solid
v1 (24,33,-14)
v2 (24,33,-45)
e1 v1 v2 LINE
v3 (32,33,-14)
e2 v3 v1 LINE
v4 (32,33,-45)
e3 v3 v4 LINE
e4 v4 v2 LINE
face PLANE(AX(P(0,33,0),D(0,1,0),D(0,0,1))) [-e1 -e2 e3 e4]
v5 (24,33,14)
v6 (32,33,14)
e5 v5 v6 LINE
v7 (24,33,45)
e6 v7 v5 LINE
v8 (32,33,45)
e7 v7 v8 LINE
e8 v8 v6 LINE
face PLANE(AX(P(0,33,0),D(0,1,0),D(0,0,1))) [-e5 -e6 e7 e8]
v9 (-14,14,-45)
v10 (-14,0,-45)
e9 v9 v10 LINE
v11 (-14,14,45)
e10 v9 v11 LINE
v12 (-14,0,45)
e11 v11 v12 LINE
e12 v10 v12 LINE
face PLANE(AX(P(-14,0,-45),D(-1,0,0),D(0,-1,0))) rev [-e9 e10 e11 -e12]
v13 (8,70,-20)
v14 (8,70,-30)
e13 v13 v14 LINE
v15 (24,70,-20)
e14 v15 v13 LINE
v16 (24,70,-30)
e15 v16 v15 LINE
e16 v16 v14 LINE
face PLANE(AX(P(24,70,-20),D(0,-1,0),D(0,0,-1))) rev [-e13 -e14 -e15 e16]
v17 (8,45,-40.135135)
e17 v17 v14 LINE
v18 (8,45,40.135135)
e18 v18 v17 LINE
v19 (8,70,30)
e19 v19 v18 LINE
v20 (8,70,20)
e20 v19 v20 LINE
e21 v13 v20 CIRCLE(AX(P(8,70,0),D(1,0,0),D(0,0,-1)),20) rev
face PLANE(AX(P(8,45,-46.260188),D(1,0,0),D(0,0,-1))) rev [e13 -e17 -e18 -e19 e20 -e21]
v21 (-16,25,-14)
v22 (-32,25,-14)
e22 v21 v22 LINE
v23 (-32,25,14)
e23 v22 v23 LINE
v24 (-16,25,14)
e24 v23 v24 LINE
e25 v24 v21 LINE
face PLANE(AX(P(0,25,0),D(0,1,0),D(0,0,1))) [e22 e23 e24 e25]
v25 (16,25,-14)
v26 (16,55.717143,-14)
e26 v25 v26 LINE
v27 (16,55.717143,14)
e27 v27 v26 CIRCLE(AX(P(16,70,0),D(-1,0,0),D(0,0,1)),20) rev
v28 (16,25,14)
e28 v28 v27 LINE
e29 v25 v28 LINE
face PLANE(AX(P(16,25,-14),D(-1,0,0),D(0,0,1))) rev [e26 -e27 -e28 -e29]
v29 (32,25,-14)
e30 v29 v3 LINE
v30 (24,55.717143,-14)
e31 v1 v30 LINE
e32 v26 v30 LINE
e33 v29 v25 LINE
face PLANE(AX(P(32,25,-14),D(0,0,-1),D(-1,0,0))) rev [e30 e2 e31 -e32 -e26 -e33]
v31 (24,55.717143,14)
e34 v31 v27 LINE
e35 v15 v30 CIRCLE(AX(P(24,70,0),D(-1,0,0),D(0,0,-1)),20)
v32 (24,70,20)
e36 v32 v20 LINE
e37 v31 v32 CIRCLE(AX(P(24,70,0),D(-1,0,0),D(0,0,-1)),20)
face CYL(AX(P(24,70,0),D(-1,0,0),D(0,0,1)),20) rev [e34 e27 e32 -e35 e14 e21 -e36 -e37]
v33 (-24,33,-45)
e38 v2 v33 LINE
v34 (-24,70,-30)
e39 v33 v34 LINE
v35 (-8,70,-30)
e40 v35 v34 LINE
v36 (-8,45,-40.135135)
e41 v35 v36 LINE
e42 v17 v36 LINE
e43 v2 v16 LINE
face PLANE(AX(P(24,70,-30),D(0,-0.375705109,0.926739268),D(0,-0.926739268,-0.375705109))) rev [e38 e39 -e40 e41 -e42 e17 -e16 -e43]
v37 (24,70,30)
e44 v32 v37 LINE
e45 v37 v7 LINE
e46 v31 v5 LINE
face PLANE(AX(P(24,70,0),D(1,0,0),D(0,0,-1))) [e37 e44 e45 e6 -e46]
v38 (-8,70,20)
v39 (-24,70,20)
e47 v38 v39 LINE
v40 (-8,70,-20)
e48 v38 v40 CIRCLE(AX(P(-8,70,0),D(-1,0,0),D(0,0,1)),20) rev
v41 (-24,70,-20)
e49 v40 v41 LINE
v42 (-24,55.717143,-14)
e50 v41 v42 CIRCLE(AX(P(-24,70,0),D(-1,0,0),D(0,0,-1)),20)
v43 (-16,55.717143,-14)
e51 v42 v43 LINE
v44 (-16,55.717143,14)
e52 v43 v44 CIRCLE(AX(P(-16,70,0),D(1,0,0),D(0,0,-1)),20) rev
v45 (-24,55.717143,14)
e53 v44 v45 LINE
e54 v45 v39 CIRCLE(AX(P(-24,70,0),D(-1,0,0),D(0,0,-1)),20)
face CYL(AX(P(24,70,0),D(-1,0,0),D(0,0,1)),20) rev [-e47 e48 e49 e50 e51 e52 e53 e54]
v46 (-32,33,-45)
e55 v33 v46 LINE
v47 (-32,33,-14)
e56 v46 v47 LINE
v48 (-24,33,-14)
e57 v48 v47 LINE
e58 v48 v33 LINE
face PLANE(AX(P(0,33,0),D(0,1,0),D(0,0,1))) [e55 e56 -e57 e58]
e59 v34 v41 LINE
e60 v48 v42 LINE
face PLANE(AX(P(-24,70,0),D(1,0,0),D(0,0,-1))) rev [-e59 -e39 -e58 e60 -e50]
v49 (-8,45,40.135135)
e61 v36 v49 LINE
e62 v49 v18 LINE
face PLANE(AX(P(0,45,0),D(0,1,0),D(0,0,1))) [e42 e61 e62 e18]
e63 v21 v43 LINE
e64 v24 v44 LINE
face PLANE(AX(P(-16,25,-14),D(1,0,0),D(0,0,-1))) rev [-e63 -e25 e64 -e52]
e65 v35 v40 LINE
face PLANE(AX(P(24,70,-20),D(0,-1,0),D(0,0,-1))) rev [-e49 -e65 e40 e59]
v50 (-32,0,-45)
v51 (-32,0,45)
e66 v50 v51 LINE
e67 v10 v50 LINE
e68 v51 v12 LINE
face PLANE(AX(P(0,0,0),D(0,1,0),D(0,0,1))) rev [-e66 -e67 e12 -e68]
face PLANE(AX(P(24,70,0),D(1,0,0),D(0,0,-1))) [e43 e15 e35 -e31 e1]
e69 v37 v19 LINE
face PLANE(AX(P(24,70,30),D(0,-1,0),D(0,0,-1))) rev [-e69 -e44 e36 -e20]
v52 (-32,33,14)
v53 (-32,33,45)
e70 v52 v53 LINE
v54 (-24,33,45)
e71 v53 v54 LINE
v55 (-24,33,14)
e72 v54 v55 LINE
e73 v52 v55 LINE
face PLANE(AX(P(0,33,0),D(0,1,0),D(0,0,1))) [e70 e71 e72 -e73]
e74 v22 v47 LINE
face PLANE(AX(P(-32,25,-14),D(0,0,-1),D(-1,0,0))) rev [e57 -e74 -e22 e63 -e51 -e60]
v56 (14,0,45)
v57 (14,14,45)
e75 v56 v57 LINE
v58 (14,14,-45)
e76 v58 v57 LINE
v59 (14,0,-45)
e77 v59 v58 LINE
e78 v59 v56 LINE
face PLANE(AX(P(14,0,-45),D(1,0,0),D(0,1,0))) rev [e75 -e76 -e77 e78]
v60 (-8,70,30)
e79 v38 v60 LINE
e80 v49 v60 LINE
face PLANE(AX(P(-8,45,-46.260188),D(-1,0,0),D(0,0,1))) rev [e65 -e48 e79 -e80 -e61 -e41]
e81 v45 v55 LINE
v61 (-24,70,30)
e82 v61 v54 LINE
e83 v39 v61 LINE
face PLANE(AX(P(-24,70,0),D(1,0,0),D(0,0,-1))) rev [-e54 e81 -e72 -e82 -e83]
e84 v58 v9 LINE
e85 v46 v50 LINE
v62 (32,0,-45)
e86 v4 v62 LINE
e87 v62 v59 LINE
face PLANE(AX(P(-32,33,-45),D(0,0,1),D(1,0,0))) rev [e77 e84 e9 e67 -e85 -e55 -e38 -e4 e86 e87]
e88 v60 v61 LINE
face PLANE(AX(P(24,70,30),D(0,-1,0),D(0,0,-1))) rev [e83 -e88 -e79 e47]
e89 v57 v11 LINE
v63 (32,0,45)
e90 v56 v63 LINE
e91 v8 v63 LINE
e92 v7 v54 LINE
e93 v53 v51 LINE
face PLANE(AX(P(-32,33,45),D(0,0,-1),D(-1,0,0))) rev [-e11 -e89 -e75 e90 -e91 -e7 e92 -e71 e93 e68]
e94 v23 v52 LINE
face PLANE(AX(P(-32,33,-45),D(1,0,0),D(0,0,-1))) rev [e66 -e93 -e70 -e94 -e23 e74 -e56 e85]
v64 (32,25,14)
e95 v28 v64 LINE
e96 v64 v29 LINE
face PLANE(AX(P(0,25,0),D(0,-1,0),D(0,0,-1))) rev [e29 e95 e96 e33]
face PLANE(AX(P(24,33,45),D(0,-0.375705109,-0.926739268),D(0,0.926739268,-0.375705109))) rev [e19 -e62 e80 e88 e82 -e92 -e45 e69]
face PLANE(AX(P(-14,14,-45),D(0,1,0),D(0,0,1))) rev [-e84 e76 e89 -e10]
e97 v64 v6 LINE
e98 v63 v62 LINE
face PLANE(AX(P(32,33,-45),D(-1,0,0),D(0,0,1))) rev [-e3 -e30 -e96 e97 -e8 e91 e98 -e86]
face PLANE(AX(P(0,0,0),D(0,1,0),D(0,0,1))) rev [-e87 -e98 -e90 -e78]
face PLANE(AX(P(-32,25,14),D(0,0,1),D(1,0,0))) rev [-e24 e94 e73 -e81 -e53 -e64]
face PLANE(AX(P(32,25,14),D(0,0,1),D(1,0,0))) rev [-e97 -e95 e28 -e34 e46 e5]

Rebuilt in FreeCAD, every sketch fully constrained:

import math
import FreeCAD as App
import Part
import Sketcher

V = App.Vector
Q = App.Units.Quantity


def add_polygon(sketch, points):
    """Adds a closed chain of lines whose ends are joined by coincident constraints."""
    first, n = sketch.GeometryCount, len(points)
    for a, b in zip(points, points[1:] + points[:1]):
        sketch.addGeometry(Part.LineSegment(App.Vector(*a, 0), App.Vector(*b, 0)), False)
    for i in range(n):
        sketch.addConstraint(Sketcher.Constraint("Coincident", first + i, 2, first + (i + 1) % n, 1))

doc = App.newDocument("Part")
body = doc.addObject("PartDesign::Body", "Body")

sketch1 = doc.addObject("Sketcher::SketchObject", "Sketch")
body.addObject(sketch1)
sketch1.AttachmentSupport = (doc.XZ_Plane, [""])
sketch1.MapMode = "FlatFace"
add_polygon(sketch1, [(-32, -45), (-32, 45), (32, 45), (32, -45)])
sketch1.addConstraint([
    Sketcher.Constraint("Vertical", 0),
    Sketcher.Constraint("Horizontal", 1),
    Sketcher.Constraint("Vertical", 2),
    Sketcher.Constraint("Horizontal", 3),
    Sketcher.Constraint("Symmetric", 0, 2, 2, 2, -1, 1),
    Sketcher.Constraint("DistanceX", 1, 1, 1, 2, Q("64 mm")),
    Sketcher.Constraint("DistanceY", 0, 1, 0, 2, Q("90 mm")),
])
pad1 = doc.addObject("PartDesign::Pad", "Pad")
body.addObject(pad1)
pad1.Profile = sketch1
pad1.Length = 33
pad1.Reversed = True

sketch2 = doc.addObject("Sketcher::SketchObject", "Sketch001")
body.addObject(sketch2)
sketch2.AttachmentSupport = (doc.YZ_Plane, [""])
sketch2.MapMode = "FlatFace"
sketch2.addGeometry([
    Part.LineSegment(V(33, 45, 0), V(33, -45, 0)),
    Part.LineSegment(V(33, -45, 0), V(70, -30, 0)),
    Part.LineSegment(V(70, -30, 0), V(70, -20, 0)),
    Part.ArcOfCircle(Part.Circle(V(70, 0, 0), V(0, 0, 1), 20), math.radians(90), math.radians(270)),
    Part.LineSegment(V(70, 20, 0), V(70, 30, 0)),
    Part.LineSegment(V(70, 30, 0), V(33, 45, 0)),
], False)
sketch2.addConstraint([
    Sketcher.Constraint("Coincident", 0, 2, 1, 1),
    Sketcher.Constraint("Coincident", 1, 2, 2, 1),
    Sketcher.Constraint("Coincident", 2, 2, 3, 2),
    Sketcher.Constraint("Coincident", 3, 1, 4, 1),
    Sketcher.Constraint("Coincident", 4, 2, 5, 1),
    Sketcher.Constraint("Coincident", 5, 2, 0, 1),
    Sketcher.Constraint("Vertical", 0),
    Sketcher.Constraint("Vertical", 2),
    Sketcher.Constraint("Vertical", 4),
    Sketcher.Constraint("Symmetric", 2, 2, 3, 1, -1),
    Sketcher.Constraint("Vertical", 3, 3, 1, 2),
    Sketcher.Constraint("Equal", 2, 4),
    Sketcher.Constraint("Equal", 1, 5),
    Sketcher.Constraint("Radius", 3, Q("20 mm")),
    Sketcher.Constraint("DistanceY", 0, 2, 0, 1, Q("90 mm")),
    Sketcher.Constraint("DistanceY", 2, 1, 2, 2, Q("10 mm")),
    Sketcher.Constraint("DistanceX", -1, 1, 3, 3, Q("70 mm")),
    Sketcher.Constraint("DistanceX", -1, 1, 0, 2, Q("33 mm")),
])
pad2 = doc.addObject("PartDesign::Pad", "Pad001")
body.addObject(pad2)
pad2.Profile = sketch2
pad2.Length = 48
pad2.Midplane = True

sketch3 = doc.addObject("Sketcher::SketchObject", "Sketch002")
body.addObject(sketch3)
sketch3.AttachmentSupport = (doc.XZ_Plane, [""])
sketch3.MapMode = "FlatFace"
sketch3.AttachmentOffset = App.Placement(V(0, 0, -70), App.Rotation())
add_polygon(sketch3, [(-8, -46.260188), (-8, 46.260188), (8, 46.260188), (8, -46.260188)])
sketch3.addConstraint([
    Sketcher.Constraint("Vertical", 0),
    Sketcher.Constraint("Horizontal", 1),
    Sketcher.Constraint("Vertical", 2),
    Sketcher.Constraint("Horizontal", 3),
    Sketcher.Constraint("Symmetric", 0, 2, 2, 2, -1, 1),
    Sketcher.Constraint("DistanceX", 1, 1, 1, 2, Q("16 mm")),
    Sketcher.Constraint("DistanceY", 0, 1, 0, 2, Q("92.520377 mm")),
])
pocket1 = doc.addObject("PartDesign::Pocket", "Pocket")
body.addObject(pocket1)
pocket1.Profile = sketch3
pocket1.Length = 25
pocket1.Reversed = True

sketch4 = doc.addObject("Sketcher::SketchObject", "Sketch003")
body.addObject(sketch4)
sketch4.AttachmentSupport = (doc.XZ_Plane, [""])
sketch4.MapMode = "FlatFace"
sketch4.AttachmentOffset = App.Placement(V(0, 0, -70), App.Rotation())
add_polygon(sketch4, [(16, -14), (16, 14), (32, 14), (32, -14)])
add_polygon(sketch4, [(-32, -14), (-32, 14), (-16, 14), (-16, -14)])
sketch4.addConstraint([
    Sketcher.Constraint("Vertical", 0),
    Sketcher.Constraint("Horizontal", 1),
    Sketcher.Constraint("Vertical", 2),
    Sketcher.Constraint("Horizontal", 3),
    Sketcher.Constraint("Vertical", 4),
    Sketcher.Constraint("Horizontal", 5),
    Sketcher.Constraint("Vertical", 6),
    Sketcher.Constraint("Horizontal", 7),
    Sketcher.Constraint("Symmetric", 2, 2, 4, 2, -1, 1),
    Sketcher.Constraint("Symmetric", 0, 2, 6, 2, -1, 1),
    Sketcher.Constraint("Horizontal", 1, 2, 4, 2),
    Sketcher.Constraint("DistanceX", 1, 1, 1, 2, Q("16 mm")),
    Sketcher.Constraint("DistanceY", 0, 1, 0, 2, Q("28 mm")),
    Sketcher.Constraint("DistanceX", -1, 1, 0, 2, Q("16 mm")),
])
pocket2 = doc.addObject("PartDesign::Pocket", "Pocket001")
body.addObject(pocket2)
pocket2.Profile = sketch4
pocket2.Length = 45
pocket2.Reversed = True

sketch5 = doc.addObject("Sketcher::SketchObject", "Sketch004")
body.addObject(sketch5)
sketch5.AttachmentSupport = (doc.XY_Plane, [""])
sketch5.MapMode = "FlatFace"
sketch5.AttachmentOffset = App.Placement(V(0, 0, 45), App.Rotation())
add_polygon(sketch5, [(-14, 14), (-14, 0), (14, 0), (14, 14)])
sketch5.addConstraint([
    Sketcher.Constraint("Vertical", 0),
    Sketcher.Constraint("Horizontal", 1),
    Sketcher.Constraint("Vertical", 2),
    Sketcher.Constraint("Horizontal", 3),
    Sketcher.Constraint("Symmetric", 0, 2, 1, 2, -1, 1),
    Sketcher.Constraint("DistanceX", 1, 1, 1, 2, Q("28 mm")),
    Sketcher.Constraint("DistanceY", 0, 2, 0, 1, Q("14 mm")),
])
pocket3 = doc.addObject("PartDesign::Pocket", "Pocket002")
body.addObject(pocket3)
pocket3.Profile = sketch5
pocket3.Type = "ThroughAll"

doc.recompute()
